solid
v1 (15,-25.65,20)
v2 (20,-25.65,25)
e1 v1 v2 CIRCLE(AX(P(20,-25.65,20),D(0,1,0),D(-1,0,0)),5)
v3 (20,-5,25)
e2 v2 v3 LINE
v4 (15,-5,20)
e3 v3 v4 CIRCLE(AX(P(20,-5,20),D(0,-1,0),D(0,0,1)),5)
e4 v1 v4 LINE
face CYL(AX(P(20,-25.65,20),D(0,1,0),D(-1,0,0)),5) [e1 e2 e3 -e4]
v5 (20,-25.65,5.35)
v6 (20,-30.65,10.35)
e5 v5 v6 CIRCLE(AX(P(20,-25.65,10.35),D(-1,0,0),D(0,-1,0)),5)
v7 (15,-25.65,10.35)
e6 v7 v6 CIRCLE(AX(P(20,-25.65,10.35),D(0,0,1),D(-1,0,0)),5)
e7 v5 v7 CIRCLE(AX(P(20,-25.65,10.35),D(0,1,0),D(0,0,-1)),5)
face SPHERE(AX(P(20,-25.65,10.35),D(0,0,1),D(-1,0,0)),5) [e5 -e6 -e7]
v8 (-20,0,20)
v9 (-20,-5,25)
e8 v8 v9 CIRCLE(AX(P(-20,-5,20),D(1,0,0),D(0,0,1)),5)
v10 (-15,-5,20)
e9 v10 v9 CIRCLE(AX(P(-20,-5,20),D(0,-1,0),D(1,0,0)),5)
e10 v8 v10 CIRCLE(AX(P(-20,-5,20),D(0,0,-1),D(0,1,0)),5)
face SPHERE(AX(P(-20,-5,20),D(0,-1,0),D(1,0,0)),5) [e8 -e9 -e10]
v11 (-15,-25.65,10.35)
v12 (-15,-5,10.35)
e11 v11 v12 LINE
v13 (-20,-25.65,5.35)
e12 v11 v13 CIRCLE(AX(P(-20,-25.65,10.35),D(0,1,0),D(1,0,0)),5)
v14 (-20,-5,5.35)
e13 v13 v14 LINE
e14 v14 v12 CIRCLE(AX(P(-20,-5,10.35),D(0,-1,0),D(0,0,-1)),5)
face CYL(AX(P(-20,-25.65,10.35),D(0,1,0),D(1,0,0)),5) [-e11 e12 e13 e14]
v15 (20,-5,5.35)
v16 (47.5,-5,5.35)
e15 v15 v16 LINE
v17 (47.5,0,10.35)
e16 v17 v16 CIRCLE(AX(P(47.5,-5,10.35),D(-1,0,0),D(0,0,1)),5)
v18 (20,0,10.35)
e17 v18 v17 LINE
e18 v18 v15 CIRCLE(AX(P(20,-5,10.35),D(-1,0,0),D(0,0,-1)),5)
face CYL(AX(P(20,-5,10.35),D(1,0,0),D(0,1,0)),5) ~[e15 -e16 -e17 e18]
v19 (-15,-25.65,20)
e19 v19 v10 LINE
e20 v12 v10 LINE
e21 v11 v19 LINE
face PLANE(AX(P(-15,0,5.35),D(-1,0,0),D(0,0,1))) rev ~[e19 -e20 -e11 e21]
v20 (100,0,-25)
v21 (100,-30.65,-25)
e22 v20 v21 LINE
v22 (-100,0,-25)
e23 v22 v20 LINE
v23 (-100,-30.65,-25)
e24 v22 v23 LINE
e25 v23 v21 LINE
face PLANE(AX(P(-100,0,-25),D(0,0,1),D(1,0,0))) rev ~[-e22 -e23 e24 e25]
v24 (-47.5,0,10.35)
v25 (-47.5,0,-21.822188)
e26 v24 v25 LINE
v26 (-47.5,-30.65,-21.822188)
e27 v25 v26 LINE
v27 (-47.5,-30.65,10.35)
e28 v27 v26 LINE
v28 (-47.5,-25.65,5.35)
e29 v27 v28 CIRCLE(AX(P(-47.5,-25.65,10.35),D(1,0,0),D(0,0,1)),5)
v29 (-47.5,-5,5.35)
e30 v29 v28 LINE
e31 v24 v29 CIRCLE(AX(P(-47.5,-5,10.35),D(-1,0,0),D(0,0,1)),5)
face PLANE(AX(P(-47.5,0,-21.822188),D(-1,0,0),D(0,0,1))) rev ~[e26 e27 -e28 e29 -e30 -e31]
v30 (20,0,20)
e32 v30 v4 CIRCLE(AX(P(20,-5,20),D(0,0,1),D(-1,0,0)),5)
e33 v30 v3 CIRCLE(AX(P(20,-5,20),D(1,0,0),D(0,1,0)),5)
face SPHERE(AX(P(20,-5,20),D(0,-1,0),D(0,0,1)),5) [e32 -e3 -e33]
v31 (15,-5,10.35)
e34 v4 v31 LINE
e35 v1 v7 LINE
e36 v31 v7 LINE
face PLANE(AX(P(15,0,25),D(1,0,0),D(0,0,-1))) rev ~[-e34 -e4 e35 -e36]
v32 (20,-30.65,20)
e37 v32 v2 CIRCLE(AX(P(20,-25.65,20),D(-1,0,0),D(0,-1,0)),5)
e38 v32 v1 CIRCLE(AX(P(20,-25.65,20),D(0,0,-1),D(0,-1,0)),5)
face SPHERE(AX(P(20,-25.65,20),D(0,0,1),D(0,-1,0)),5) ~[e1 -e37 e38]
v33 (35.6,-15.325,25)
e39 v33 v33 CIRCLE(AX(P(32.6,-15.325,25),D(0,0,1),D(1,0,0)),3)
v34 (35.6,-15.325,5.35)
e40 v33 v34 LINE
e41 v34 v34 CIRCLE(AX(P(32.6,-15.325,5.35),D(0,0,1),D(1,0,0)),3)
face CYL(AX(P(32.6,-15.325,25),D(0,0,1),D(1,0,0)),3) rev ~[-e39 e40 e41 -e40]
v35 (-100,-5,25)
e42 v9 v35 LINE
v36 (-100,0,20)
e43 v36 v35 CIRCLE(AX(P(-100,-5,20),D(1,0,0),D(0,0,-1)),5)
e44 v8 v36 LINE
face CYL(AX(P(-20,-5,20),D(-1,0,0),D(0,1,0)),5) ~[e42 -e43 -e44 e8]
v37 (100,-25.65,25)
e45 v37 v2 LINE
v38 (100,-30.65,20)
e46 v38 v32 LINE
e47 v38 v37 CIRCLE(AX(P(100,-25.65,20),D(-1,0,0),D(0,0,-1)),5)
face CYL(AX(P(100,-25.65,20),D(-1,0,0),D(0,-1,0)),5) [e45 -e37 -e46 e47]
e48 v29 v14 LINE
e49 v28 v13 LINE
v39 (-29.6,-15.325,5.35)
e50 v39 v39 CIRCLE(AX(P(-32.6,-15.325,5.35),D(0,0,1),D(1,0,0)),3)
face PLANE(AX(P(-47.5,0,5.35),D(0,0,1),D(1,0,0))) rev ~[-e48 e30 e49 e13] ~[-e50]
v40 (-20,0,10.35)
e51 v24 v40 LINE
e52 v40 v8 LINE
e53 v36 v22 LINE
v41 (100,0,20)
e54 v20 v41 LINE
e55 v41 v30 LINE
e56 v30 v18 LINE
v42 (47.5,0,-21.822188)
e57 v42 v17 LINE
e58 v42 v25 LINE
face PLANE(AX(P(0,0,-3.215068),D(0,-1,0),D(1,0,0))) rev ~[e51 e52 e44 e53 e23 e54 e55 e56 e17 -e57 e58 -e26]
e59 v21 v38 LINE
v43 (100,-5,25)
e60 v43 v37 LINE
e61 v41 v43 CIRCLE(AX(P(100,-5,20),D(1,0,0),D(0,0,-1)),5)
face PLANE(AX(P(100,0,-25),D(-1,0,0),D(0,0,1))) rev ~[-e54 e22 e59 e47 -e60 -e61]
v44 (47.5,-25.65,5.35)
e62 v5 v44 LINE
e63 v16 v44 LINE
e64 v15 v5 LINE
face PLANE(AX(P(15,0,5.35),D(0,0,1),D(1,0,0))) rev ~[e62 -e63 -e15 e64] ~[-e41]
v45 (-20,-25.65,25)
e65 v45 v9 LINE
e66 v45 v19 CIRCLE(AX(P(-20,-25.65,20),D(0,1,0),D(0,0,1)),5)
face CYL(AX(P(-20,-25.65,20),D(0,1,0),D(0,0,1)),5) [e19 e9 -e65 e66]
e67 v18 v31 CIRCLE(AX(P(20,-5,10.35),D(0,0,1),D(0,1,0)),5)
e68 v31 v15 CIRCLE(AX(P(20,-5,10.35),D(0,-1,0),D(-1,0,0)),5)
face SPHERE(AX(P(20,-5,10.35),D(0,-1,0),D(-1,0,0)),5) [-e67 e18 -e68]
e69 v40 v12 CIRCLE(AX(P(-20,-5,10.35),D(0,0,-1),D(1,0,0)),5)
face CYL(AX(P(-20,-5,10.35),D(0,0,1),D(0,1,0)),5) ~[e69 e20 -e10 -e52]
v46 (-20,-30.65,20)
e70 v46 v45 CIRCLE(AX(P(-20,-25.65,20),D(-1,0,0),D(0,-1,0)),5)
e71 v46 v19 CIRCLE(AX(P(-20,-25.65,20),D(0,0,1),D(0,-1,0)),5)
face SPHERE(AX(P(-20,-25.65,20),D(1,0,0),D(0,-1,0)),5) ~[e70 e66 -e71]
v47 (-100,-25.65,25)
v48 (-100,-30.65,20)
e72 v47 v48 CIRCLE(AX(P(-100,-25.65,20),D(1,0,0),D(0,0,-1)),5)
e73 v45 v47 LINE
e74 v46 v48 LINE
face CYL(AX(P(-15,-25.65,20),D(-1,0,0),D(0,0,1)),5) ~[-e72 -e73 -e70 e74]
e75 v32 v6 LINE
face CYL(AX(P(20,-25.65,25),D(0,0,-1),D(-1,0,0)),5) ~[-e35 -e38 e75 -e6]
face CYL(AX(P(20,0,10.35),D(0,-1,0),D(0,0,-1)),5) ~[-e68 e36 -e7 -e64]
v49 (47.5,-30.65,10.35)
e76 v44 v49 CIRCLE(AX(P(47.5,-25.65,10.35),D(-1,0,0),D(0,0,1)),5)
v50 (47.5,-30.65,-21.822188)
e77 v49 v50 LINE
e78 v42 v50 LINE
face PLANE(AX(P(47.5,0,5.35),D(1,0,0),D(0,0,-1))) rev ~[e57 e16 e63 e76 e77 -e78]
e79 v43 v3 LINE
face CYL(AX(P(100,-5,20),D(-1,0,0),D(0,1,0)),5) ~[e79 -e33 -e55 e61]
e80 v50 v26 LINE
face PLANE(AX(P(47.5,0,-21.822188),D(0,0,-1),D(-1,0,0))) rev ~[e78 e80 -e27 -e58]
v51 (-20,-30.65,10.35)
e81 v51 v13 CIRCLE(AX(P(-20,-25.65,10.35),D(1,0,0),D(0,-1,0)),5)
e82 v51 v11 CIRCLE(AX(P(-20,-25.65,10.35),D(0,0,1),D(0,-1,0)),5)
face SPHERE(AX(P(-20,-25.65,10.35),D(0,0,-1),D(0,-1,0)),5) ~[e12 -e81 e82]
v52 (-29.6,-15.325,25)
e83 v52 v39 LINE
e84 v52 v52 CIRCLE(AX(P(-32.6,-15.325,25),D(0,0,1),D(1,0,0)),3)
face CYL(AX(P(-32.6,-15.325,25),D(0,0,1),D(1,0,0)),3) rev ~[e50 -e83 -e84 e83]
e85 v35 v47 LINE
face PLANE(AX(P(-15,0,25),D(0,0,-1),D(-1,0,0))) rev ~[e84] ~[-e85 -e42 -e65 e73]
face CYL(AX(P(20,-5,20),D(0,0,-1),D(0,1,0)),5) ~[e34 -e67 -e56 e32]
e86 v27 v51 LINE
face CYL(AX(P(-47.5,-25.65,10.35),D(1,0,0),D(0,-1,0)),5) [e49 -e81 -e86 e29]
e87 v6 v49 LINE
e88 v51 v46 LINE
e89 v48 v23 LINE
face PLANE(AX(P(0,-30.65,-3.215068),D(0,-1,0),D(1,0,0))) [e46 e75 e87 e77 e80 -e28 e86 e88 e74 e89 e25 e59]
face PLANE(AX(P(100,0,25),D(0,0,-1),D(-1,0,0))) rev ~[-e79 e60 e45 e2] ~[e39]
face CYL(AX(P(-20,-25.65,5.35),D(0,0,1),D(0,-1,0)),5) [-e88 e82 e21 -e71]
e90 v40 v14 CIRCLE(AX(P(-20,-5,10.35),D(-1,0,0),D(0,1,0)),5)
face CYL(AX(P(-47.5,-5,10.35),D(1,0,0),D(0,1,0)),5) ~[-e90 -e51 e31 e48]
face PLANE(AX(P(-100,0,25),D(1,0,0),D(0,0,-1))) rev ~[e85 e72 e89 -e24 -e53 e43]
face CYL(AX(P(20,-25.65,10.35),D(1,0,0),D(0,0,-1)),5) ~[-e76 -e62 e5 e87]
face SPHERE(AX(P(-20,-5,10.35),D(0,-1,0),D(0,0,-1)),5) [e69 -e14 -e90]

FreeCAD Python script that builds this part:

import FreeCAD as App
import Part
import Sketcher

V = App.Vector


def edges_at(feature, points):
    """Names of the edges that pass closest to the given points."""
    edges = feature.Shape.Edges
    near = lambda p: min(range(len(edges)), key=lambda i: edges[i].distToShape(Part.Vertex(*p))[0])
    return sorted({f"Edge{near(p) + 1}" for p in points})

doc = App.newDocument("Part")
params = doc.addObject("Spreadsheet::Sheet", "Params")
for row, (alias, value) in enumerate([
    ("sketch1_width", "200 mm"),
    ("sketch1_width2", "85 mm"),
    ("sketch1_width3", "95 mm"),
    ("sketch1_height", "50 mm"),
    ("sketch1_height2", "19.65 mm"),
    ("pad1_length", "30.65 mm"),
    ("fillet_radius", "5 mm"),
    ("fillet2_radius", "5 mm"),
    ("fillet3_radius", "5 mm"),
    ("fillet4_radius", "5 mm"),
    ("fillet5_radius", "5 mm"),
    ("fillet6_radius", "5 mm"),
    ("fillet7_radius", "5 mm"),
    ("fillet8_radius", "5 mm"),
    ("sketch2_diameter", "6 mm"),
    ("pocket1_length", "20 mm"),
], start=1):
    params.set(f"A{row}", alias)
    params.set(f"B{row}", "=" + value)
    params.setAlias(f"B{row}", alias)

body = doc.addObject("PartDesign::Body", "Body")

# Sketch on XZ plane
sketch1 = doc.addObject("Sketcher::SketchObject", "Sketch")
body.addObject(sketch1)
sketch1.AttachmentSupport = (doc.XZ_Plane, [""])
sketch1.MapMode = "FlatFace"
sketch1.addGeometry([
    Part.LineSegment(V(-100, 25, 0), V(-100, -25, 0)),  # 0
    Part.LineSegment(V(-100, -25, 0), V(100, -25, 0)),  # 1
    Part.LineSegment(V(100, -25, 0), V(100, 25, 0)),  # 2
    Part.LineSegment(V(100, 25, 0), V(15, 25, 0)),  # 3
    Part.LineSegment(V(15, 25, 0), V(15, 5.35, 0)),  # 4
    Part.LineSegment(V(15, 5.35, 0), V(47.5, 5.35, 0)),  # 5
    Part.LineSegment(V(47.5, 5.35, 0), V(47.5, -21.822188, 0)),  # 6
    Part.LineSegment(V(47.5, -21.822188, 0), V(-47.5, -21.822188, 0)),  # 7
    Part.LineSegment(V(-47.5, -21.822188, 0), V(-47.5, 5.35, 0)),  # 8
    Part.LineSegment(V(-47.5, 5.35, 0), V(-15, 5.35, 0)),  # 9
    Part.LineSegment(V(-15, 5.35, 0), V(-15, 25, 0)),  # 10
    Part.LineSegment(V(-15, 25, 0), V(-100, 25, 0)),  # 11
], False)
sketch1.addConstraint([
    Sketcher.Constraint("Coincident", 0, 2, 1, 1),
    Sketcher.Constraint("Coincident", 1, 2, 2, 1),
    Sketcher.Constraint("Coincident", 2, 2, 3, 1),
    Sketcher.Constraint("Coincident", 3, 2, 4, 1),
    Sketcher.Constraint("Coincident", 4, 2, 5, 1),
    Sketcher.Constraint("Coincident", 5, 2, 6, 1),
    Sketcher.Constraint("Coincident", 6, 2, 7, 1),
    Sketcher.Constraint("Coincident", 7, 2, 8, 1),
    Sketcher.Constraint("Coincident", 8, 2, 9, 1),
    Sketcher.Constraint("Coincident", 9, 2, 10, 1),
    Sketcher.Constraint("Coincident", 10, 2, 11, 1),
    Sketcher.Constraint("Coincident", 11, 2, 0, 1),
    Sketcher.Constraint("Vertical", 0),
    Sketcher.Constraint("Horizontal", 1),
    Sketcher.Constraint("Vertical", 2),
    Sketcher.Constraint("Horizontal", 3),
    Sketcher.Constraint("Vertical", 4),
    Sketcher.Constraint("Horizontal", 5),
    Sketcher.Constraint("Vertical", 6),
    Sketcher.Constraint("Horizontal", 7),
    Sketcher.Constraint("Vertical", 8),
    Sketcher.Constraint("Horizontal", 9),
    Sketcher.Constraint("Vertical", 10),
    Sketcher.Constraint("Horizontal", 11),
    Sketcher.Constraint("Symmetric", 0, 2, 2, 2, -1, 1),
    Sketcher.Constraint("Symmetric", 5, 2, 8, 2, -2),
    Sketcher.Constraint("Symmetric", 3, 2, 10, 2, -2),
    Sketcher.Constraint("DistanceX", 1, 1, 1, 2, 200.0),
    Sketcher.Constraint("DistanceX", 3, 2, 3, 1, 85.0),
    Sketcher.Constraint("DistanceX", 7, 2, 7, 1, 95.0),
    Sketcher.Constraint("DistanceY", 0, 2, 0, 1, 50.0),
    Sketcher.Constraint("DistanceY", 4, 2, 4, 1, 19.65),
    Sketcher.Constraint("DistanceY", 6, 2, 6, 1, 27.172188),
])
sketch1.setExpression("Constraints[27]", "Params.sketch1_width")
sketch1.setExpression("Constraints[28]", "Params.sketch1_width2")
sketch1.setExpression("Constraints[29]", "Params.sketch1_width3")
sketch1.setExpression("Constraints[30]", "Params.sketch1_height")
sketch1.setExpression("Constraints[31]", "Params.sketch1_height2")
pad1 = doc.addObject("PartDesign::Pad", "Pad")
body.addObject(pad1)
pad1.Profile = sketch1
pad1.setExpression("Length", "Params.pad1_length")
doc.recompute()

fillet = doc.addObject("PartDesign::Fillet", "Fillet")
body.addObject(fillet)
fillet.Base = (pad1, edges_at(pad1, [(-57.5, -30.65, 25)]))
fillet.setExpression("Radius", "Params.fillet_radius")
doc.recompute()

fillet2 = doc.addObject("PartDesign::Fillet", "Fillet001")
body.addObject(fillet2)
fillet2.Base = (fillet, edges_at(fillet, [(-15, -30.65, 12.675)]))
fillet2.setExpression("Radius", "Params.fillet2_radius")
doc.recompute()

fillet3 = doc.addObject("PartDesign::Fillet", "Fillet002")
body.addObject(fillet3)
fillet3.Base = (fillet2, edges_at(fillet2, [(-33.75, -30.65, 5.35)]))
fillet3.setExpression("Radius", "Params.fillet3_radius")
doc.recompute()

fillet4 = doc.addObject("PartDesign::Fillet", "Fillet003")
body.addObject(fillet4)
fillet4.Base = (fillet3, edges_at(fillet3, [(15, -30.65, 15.175)]))
fillet4.setExpression("Radius", "Params.fillet4_radius")
doc.recompute()

fillet5 = doc.addObject("PartDesign::Fillet", "Fillet004")
body.addObject(fillet5)
fillet5.Base = (fillet4, edges_at(fillet4, [(33.75, -30.65, 5.35)]))
fillet5.setExpression("Radius", "Params.fillet5_radius")
doc.recompute()

fillet6 = doc.addObject("PartDesign::Fillet", "Fillet005")
body.addObject(fillet6)
fillet6.Base = (fillet5, edges_at(fillet5, [(60, -30.65, 25)]))
fillet6.setExpression("Radius", "Params.fillet6_radius")
doc.recompute()

fillet7 = doc.addObject("PartDesign::Fillet", "Fillet006")
body.addObject(fillet7)
fillet7.Base = (fillet6, edges_at(fillet6, [(60, 0, 25)]))
fillet7.setExpression("Radius", "Params.fillet7_radius")
doc.recompute()

fillet8 = doc.addObject("PartDesign::Fillet", "Fillet007")
body.addObject(fillet8)
fillet8.Base = (fillet7, edges_at(fillet7, [(-33.75, 0, 5.35)]))
fillet8.setExpression("Radius", "Params.fillet8_radius")

# Sketch on XY plane
sketch2 = doc.addObject("Sketcher::SketchObject", "Sketch001")
body.addObject(sketch2)
sketch2.AttachmentSupport = (doc.XY_Plane, [""])
sketch2.MapMode = "FlatFace"
sketch2.AttachmentOffset = App.Placement(V(0, 0, 25), App.Rotation())
sketch2.addGeometry([
    Part.Circle(V(-32.6, -15.325, 0), V(0, 0, 1), 3),
    Part.Circle(V(32.6, -15.325, 0), V(0, 0, 1), 3),
], False)
sketch2.addConstraint([
    Sketcher.Constraint("Equal", 0, 1),
    Sketcher.Constraint("Symmetric", 0, 3, 1, 3, -2),
    Sketcher.Constraint("Diameter", 0, 6.0),
    Sketcher.Constraint("DistanceX", 0, 3, -1, 1, 32.6),
    Sketcher.Constraint("DistanceY", 0, 3, -1, 1, 15.325),
])
sketch2.setExpression("Constraints[2]", "Params.sketch2_diameter")
pocket1 = doc.addObject("PartDesign::Pocket", "Pocket")
body.addObject(pocket1)
pocket1.Profile = sketch2
pocket1.setExpression("Length", "Params.pocket1_length")

doc.recompute()
